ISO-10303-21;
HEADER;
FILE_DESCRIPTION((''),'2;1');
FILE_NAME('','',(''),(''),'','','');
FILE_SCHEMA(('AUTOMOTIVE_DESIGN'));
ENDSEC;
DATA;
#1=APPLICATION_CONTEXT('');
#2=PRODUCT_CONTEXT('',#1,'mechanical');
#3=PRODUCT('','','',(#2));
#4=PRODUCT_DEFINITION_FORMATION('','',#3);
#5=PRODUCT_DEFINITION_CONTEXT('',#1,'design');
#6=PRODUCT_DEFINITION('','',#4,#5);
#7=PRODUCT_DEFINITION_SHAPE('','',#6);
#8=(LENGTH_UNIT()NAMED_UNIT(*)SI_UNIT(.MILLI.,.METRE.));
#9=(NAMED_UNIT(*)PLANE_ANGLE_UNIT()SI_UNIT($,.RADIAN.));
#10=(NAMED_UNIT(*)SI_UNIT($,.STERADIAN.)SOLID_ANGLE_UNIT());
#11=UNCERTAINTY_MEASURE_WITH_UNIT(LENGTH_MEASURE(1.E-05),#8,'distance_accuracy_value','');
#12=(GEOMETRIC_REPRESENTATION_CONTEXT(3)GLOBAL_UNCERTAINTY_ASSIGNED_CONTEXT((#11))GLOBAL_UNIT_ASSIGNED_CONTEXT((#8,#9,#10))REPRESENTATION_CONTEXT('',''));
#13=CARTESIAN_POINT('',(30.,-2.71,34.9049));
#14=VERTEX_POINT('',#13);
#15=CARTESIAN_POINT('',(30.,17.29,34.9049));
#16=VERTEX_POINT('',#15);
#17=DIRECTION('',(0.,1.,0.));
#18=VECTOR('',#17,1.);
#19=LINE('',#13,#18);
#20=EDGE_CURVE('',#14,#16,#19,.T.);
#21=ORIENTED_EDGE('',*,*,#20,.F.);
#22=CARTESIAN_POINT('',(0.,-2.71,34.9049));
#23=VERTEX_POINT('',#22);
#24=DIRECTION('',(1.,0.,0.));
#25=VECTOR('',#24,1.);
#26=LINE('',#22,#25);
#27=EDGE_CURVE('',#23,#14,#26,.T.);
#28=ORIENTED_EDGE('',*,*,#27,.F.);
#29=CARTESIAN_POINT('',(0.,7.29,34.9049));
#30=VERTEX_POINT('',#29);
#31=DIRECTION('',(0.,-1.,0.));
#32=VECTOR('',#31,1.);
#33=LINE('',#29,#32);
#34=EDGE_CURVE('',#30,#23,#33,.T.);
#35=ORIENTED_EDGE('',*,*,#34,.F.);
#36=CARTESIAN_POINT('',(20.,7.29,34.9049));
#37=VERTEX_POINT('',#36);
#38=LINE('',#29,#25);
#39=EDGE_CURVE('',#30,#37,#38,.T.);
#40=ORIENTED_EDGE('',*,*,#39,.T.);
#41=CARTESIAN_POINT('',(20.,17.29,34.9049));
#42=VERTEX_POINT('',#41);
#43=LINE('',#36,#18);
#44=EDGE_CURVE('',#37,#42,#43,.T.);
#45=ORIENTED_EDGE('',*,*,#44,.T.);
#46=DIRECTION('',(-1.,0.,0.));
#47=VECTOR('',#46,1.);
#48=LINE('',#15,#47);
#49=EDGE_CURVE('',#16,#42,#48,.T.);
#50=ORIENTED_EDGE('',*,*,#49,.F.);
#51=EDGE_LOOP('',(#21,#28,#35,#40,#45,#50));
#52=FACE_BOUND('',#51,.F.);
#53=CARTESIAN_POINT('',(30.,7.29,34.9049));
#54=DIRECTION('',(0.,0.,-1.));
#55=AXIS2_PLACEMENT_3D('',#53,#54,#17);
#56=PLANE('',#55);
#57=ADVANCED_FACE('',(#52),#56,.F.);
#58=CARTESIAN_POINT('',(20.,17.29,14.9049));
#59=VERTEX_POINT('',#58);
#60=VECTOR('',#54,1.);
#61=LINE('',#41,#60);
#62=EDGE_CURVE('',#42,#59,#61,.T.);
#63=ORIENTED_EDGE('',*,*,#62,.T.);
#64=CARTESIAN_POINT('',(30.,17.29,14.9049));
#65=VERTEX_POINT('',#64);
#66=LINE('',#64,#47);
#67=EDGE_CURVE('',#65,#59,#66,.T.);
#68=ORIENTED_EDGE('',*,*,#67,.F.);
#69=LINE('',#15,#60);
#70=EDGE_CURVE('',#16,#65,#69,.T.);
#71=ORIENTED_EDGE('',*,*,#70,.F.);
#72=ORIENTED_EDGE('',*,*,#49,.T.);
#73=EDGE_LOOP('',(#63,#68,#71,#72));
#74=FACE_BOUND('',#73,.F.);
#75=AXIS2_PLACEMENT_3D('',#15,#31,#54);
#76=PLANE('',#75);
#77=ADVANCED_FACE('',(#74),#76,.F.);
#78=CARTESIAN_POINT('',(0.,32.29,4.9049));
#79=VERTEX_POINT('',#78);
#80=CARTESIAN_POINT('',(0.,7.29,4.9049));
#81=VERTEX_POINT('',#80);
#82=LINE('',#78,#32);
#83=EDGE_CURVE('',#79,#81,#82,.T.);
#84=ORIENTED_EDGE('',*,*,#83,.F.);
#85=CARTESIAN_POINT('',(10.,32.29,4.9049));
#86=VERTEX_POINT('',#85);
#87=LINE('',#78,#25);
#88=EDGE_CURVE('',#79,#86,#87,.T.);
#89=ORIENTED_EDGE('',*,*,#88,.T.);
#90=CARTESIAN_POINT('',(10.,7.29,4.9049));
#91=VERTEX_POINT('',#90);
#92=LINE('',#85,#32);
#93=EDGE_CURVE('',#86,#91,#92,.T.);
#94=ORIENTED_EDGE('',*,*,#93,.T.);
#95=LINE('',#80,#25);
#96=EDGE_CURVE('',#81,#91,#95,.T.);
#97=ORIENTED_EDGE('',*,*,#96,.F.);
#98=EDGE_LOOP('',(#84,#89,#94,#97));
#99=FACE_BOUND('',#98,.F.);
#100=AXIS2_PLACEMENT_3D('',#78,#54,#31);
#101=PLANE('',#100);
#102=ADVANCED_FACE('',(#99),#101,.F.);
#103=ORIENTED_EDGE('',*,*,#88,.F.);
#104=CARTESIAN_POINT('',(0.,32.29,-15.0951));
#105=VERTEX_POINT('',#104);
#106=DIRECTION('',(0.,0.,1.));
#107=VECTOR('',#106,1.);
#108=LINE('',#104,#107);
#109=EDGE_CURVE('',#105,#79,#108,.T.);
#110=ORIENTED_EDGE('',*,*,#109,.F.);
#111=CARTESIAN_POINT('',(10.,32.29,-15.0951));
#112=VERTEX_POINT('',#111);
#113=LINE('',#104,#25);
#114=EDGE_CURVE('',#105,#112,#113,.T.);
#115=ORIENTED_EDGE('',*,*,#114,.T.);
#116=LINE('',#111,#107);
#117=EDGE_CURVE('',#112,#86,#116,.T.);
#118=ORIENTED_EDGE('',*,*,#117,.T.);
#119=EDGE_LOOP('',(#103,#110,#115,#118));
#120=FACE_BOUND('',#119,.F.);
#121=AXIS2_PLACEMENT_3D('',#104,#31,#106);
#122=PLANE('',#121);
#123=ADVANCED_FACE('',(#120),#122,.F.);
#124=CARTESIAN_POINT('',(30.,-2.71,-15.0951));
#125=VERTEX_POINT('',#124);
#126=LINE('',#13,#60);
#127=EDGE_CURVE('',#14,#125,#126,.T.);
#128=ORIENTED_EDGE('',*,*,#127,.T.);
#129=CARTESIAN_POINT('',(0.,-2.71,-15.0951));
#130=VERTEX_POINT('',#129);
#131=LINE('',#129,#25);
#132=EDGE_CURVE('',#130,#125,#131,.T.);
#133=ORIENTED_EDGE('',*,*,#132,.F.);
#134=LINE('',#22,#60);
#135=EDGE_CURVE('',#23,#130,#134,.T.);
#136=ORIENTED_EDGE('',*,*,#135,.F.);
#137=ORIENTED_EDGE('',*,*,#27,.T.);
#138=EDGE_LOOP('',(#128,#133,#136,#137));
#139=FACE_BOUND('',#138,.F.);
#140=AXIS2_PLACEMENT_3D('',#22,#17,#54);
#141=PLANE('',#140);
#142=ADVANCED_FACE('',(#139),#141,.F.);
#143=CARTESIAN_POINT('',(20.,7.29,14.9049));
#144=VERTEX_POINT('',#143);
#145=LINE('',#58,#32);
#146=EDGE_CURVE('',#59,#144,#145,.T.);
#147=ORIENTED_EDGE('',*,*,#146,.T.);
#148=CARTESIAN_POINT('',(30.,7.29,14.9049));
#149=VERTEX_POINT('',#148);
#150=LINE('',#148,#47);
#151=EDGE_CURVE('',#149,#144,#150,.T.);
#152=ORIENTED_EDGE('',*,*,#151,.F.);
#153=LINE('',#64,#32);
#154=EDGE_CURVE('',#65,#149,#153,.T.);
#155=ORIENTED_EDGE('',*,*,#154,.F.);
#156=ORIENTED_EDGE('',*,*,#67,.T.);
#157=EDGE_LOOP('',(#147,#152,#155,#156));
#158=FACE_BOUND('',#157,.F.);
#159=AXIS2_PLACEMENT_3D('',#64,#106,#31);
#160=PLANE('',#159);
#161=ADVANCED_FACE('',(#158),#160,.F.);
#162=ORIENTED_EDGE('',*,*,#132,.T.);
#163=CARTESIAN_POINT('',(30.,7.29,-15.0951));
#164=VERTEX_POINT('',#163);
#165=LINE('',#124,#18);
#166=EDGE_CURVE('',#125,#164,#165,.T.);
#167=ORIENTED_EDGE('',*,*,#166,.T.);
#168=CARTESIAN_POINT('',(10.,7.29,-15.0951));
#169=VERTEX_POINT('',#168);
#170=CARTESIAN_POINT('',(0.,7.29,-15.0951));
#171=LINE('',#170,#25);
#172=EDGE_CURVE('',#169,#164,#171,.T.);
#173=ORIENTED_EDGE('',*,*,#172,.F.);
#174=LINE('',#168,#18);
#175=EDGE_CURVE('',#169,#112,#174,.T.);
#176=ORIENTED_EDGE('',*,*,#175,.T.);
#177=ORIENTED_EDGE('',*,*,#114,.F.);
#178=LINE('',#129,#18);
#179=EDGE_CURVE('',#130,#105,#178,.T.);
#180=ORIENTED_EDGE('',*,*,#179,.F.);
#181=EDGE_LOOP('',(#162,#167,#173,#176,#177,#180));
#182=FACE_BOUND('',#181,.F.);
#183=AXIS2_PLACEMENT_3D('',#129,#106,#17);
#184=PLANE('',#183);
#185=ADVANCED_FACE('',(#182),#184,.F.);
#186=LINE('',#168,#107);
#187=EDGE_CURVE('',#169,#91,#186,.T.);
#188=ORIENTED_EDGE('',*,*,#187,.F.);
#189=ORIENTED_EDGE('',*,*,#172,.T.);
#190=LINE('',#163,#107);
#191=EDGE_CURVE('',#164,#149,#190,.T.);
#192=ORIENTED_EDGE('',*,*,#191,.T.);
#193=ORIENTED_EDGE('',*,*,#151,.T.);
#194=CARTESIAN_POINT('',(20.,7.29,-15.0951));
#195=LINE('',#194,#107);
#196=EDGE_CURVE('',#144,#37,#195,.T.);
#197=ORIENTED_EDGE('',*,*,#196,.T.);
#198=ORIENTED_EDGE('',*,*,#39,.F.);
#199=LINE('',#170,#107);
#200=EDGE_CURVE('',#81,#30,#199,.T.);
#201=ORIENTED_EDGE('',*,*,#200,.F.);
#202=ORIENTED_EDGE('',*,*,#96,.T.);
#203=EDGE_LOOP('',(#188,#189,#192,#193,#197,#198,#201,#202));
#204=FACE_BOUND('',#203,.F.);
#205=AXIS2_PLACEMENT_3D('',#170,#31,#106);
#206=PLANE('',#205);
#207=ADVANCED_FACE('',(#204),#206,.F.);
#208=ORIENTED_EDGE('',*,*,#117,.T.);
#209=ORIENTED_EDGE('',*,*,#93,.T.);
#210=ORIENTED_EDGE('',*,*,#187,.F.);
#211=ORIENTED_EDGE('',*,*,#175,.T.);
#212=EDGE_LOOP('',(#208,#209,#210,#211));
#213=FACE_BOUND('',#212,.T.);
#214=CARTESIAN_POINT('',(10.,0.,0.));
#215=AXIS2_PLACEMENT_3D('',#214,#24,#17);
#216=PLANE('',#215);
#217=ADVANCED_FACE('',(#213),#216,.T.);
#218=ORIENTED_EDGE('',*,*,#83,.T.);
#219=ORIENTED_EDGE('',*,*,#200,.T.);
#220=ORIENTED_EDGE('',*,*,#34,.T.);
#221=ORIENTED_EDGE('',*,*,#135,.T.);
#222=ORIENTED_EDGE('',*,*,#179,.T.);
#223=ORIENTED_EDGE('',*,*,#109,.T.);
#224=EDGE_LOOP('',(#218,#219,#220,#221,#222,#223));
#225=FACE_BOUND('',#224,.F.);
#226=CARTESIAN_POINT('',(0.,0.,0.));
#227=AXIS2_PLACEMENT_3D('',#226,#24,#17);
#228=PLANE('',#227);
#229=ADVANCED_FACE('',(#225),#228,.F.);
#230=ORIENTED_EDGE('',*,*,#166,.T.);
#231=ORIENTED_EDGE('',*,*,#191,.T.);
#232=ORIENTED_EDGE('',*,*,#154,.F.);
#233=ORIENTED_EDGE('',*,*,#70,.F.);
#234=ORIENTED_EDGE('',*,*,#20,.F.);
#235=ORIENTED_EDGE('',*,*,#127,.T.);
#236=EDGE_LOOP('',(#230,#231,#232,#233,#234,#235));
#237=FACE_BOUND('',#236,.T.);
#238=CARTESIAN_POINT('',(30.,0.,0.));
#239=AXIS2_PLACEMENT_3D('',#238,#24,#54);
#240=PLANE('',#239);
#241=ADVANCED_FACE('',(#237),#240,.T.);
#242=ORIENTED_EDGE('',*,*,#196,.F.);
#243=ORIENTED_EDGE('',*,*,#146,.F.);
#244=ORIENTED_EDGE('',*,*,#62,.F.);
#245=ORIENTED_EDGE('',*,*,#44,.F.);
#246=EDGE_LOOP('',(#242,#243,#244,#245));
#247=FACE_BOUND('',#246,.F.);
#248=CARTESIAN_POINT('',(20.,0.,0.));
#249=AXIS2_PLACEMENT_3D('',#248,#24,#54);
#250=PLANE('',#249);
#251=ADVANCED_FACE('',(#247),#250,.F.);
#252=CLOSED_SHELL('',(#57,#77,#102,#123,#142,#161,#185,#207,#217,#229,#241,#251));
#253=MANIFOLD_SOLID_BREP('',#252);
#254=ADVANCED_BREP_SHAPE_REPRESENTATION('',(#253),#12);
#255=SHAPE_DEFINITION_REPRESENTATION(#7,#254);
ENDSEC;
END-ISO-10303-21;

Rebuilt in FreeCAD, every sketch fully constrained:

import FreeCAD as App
import Part
import Sketcher
from FreeCAD import Vector
Q = App.Units.Quantity

doc = App.newDocument("Part")
params = doc.addObject("Spreadsheet::Sheet", "Params")
for row, (alias, value) in enumerate([
    ("sketch1_width", "10 mm"),
    ("sketch1_height", "50 mm"),
    ("pad1_length", "30 mm"),
    ("sketch2_width", "25 mm"),
    ("sketch2_height", "20 mm"),
    ("pad2_length", "10 mm"),
    ("sketch3_width", "10 mm"),
    ("sketch3_height", "20 mm"),
    ("pad3_length", "10 mm"),
], start=1):
    params.set(f"A{row}", alias)
    params.set(f"B{row}", "=" + value)
    params.setAlias(f"B{row}", alias)

body = doc.addObject("PartDesign::Body", "Body")

sketch1 = body.newObject("Sketcher::SketchObject", "Sketch")
sketch1.AttachmentSupport = (doc.getObject("YZ_Plane"), [""])
sketch1.MapMode = "FlatFace"
sketch1.addGeometry([
    Part.LineSegment(Vector(-2.71, 34.9049, 0), Vector(-2.71, -15.0951, 0)),
    Part.LineSegment(Vector(-2.71, -15.0951, 0), Vector(7.29, -15.0951, 0)),
    Part.LineSegment(Vector(7.29, -15.0951, 0), Vector(7.29, 34.9049, 0)),
    Part.LineSegment(Vector(7.29, 34.9049, 0), Vector(-2.71, 34.9049, 0)),
], False)
sketch1.addConstraint([
    Sketcher.Constraint("Coincident", 0, 2, 1, 1),
    Sketcher.Constraint("Coincident", 1, 2, 2, 1),
    Sketcher.Constraint("Coincident", 2, 2, 3, 1),
    Sketcher.Constraint("Coincident", 3, 2, 0, 1),
    Sketcher.Constraint("Vertical", 0),
    Sketcher.Constraint("Horizontal", 1),
    Sketcher.Constraint("Vertical", 2),
    Sketcher.Constraint("Horizontal", 3),
    Sketcher.Constraint("DistanceX", 1, 1, 1, 2, Q("10 mm")),
    Sketcher.Constraint("DistanceY", 0, 2, 0, 1, Q("50 mm")),
    Sketcher.Constraint("DistanceX", 0, 2, -1, 1, Q("2.71 mm")),
    Sketcher.Constraint("DistanceY", 0, 2, -1, 1, Q("15.095 mm")),
])
sketch1.setExpression("Constraints[8]", "Params.sketch1_width")
sketch1.setExpression("Constraints[9]", "Params.sketch1_height")
pad1 = body.newObject("PartDesign::Pad", "Pad")
pad1.Profile = sketch1
pad1.setExpression("Length", "Params.pad1_length")

sketch2 = body.newObject("Sketcher::SketchObject", "Sketch001")
sketch2.AttachmentSupport = (doc.getObject("YZ_Plane"), [""])
sketch2.MapMode = "FlatFace"
sketch2.addGeometry([
    Part.LineSegment(Vector(7.29, 4.9049, 0), Vector(7.29, -15.0951, 0)),
    Part.LineSegment(Vector(7.29, -15.0951, 0), Vector(32.29, -15.0951, 0)),
    Part.LineSegment(Vector(32.29, -15.0951, 0), Vector(32.29, 4.9049, 0)),
    Part.LineSegment(Vector(32.29, 4.9049, 0), Vector(7.29, 4.9049, 0)),
], False)
sketch2.addConstraint([
    Sketcher.Constraint("Coincident", 0, 2, 1, 1),
    Sketcher.Constraint("Coincident", 1, 2, 2, 1),
    Sketcher.Constraint("Coincident", 2, 2, 3, 1),
    Sketcher.Constraint("Coincident", 3, 2, 0, 1),
    Sketcher.Constraint("Vertical", 0),
    Sketcher.Constraint("Horizontal", 1),
    Sketcher.Constraint("Vertical", 2),
    Sketcher.Constraint("Horizontal", 3),
    Sketcher.Constraint("DistanceX", 1, 1, 1, 2, Q("25 mm")),
    Sketcher.Constraint("DistanceY", 0, 2, 0, 1, Q("20 mm")),
    Sketcher.Constraint("DistanceX", -1, 1, 0, 2, Q("7.29 mm")),
    Sketcher.Constraint("DistanceY", 0, 2, -1, 1, Q("15.095 mm")),
])
sketch2.setExpression("Constraints[8]", "Params.sketch2_width")
sketch2.setExpression("Constraints[9]", "Params.sketch2_height")
pad2 = body.newObject("PartDesign::Pad", "Pad001")
pad2.Profile = sketch2
pad2.setExpression("Length", "Params.pad2_length")

sketch3 = body.newObject("Sketcher::SketchObject", "Sketch002")
sketch3.AttachmentSupport = (doc.getObject("YZ_Plane"), [""])
sketch3.MapMode = "FlatFace"
sketch3.AttachmentOffset = App.Placement(Vector(0, 0, 30), App.Rotation())
sketch3.addGeometry([
    Part.LineSegment(Vector(17.29, 34.9049, 0), Vector(7.29, 34.9049, 0)),
    Part.LineSegment(Vector(7.29, 34.9049, 0), Vector(7.29, 14.9049, 0)),
    Part.LineSegment(Vector(7.29, 14.9049, 0), Vector(17.29, 14.9049, 0)),
    Part.LineSegment(Vector(17.29, 14.9049, 0), Vector(17.29, 34.9049, 0)),
], False)
sketch3.addConstraint([
    Sketcher.Constraint("Coincident", 0, 2, 1, 1),
    Sketcher.Constraint("Coincident", 1, 2, 2, 1),
    Sketcher.Constraint("Coincident", 2, 2, 3, 1),
    Sketcher.Constraint("Coincident", 3, 2, 0, 1),
    Sketcher.Constraint("Horizontal", 0),
    Sketcher.Constraint("Vertical", 1),
    Sketcher.Constraint("Horizontal", 2),
    Sketcher.Constraint("Vertical", 3),
    Sketcher.Constraint("DistanceX", 0, 2, 0, 1, Q("10 mm")),
    Sketcher.Constraint("DistanceY", 1, 2, 1, 1, Q("20 mm")),
    Sketcher.Constraint("DistanceX", -1, 1, 0, 2, Q("7.29 mm")),
    Sketcher.Constraint("DistanceY", -1, 1, 0, 2, Q("34.905 mm")),
])
sketch3.setExpression("Constraints[8]", "Params.sketch3_width")
sketch3.setExpression("Constraints[9]", "Params.sketch3_height")
pad3 = body.newObject("PartDesign::Pad", "Pad002")
pad3.Profile = sketch3
pad3.setExpression("Length", "Params.pad3_length")
pad3.Reversed = True

doc.recompute()
